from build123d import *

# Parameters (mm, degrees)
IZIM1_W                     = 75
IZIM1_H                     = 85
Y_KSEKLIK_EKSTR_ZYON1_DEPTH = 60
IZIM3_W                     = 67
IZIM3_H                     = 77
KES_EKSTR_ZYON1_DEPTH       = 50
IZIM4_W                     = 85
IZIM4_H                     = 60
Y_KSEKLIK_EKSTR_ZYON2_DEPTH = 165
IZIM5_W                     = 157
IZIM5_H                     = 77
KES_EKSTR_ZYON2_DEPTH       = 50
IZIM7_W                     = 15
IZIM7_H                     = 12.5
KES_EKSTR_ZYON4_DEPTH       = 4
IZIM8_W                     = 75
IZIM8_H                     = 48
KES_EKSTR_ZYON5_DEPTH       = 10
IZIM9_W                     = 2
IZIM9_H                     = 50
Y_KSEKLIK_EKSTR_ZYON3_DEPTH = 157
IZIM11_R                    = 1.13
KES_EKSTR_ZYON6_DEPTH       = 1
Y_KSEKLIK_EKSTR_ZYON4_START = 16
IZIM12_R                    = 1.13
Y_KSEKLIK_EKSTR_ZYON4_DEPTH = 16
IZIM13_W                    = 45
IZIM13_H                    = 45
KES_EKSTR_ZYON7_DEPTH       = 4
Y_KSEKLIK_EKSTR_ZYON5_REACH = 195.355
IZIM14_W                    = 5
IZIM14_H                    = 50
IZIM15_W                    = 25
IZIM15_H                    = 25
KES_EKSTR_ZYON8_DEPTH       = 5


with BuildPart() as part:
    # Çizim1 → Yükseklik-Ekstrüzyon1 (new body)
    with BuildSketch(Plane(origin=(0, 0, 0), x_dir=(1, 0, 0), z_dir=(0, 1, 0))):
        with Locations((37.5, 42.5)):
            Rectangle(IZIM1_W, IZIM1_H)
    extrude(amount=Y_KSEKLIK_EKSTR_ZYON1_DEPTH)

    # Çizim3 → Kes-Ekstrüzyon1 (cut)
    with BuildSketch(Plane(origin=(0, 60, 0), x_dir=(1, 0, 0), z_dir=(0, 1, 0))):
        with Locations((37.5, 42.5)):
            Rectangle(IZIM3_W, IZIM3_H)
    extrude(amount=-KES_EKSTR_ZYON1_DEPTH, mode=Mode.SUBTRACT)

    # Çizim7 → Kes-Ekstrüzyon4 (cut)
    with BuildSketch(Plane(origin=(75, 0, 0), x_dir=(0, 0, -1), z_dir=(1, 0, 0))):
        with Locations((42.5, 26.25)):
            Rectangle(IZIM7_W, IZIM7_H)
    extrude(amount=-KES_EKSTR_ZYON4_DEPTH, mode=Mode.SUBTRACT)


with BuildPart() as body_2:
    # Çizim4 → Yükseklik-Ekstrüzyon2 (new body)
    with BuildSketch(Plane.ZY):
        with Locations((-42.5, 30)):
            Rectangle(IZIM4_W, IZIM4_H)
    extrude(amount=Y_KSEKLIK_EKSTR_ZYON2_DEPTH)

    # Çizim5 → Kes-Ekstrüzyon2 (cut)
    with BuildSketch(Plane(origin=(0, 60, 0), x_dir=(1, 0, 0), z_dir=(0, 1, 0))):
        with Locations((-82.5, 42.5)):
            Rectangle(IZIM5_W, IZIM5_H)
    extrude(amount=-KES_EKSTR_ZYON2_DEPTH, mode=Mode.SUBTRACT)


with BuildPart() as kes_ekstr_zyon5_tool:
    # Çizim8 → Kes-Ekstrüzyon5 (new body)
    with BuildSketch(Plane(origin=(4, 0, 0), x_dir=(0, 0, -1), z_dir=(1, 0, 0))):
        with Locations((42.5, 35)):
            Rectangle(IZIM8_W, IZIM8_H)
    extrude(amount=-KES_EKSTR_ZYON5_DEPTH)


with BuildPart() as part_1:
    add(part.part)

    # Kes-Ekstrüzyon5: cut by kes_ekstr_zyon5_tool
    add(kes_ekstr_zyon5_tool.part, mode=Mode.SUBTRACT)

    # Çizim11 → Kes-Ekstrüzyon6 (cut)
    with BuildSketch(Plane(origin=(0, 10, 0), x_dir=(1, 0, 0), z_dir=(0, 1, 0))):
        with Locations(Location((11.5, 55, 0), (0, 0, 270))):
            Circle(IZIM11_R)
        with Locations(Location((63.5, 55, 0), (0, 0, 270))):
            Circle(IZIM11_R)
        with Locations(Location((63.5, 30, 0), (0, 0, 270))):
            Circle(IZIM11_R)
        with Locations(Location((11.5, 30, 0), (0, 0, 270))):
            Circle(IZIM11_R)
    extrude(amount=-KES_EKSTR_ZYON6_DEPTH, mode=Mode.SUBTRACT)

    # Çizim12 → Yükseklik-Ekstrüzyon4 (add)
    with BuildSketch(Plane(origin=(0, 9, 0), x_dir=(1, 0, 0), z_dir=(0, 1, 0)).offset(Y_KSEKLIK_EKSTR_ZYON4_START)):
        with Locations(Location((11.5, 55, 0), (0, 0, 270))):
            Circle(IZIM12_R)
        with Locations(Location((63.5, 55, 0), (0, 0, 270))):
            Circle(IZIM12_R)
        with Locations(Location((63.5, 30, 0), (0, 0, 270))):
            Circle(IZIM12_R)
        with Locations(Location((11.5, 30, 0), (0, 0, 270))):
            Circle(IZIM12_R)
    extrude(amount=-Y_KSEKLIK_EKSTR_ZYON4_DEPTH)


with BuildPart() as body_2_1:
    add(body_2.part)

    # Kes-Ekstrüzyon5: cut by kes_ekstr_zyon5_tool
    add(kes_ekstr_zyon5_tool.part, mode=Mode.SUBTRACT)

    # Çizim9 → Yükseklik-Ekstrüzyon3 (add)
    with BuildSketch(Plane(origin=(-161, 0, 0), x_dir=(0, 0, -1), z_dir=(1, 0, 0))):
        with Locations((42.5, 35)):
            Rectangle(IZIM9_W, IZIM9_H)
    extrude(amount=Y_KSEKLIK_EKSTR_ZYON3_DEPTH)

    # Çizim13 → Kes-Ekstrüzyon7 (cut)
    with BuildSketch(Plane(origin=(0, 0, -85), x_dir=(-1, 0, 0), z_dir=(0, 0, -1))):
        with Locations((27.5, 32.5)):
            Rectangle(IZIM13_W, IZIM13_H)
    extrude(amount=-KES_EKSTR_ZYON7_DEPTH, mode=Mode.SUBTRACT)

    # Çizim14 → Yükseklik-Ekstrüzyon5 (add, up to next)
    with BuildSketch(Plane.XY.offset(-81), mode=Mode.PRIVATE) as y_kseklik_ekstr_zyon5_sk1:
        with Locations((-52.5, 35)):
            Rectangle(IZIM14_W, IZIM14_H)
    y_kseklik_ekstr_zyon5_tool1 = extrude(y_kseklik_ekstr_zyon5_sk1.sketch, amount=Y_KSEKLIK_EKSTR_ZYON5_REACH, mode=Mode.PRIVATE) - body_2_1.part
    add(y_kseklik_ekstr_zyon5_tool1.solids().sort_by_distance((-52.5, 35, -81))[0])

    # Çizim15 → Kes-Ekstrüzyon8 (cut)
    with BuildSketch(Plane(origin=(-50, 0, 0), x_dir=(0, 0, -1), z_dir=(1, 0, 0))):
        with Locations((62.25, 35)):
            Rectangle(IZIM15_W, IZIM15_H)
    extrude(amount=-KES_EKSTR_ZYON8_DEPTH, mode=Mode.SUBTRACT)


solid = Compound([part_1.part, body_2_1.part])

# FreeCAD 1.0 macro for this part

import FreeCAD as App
import Part
import Sketcher

V = App.Vector
Q = App.Units.Quantity

doc = App.newDocument("Part")
body = doc.addObject("PartDesign::Body", "Body")

# Sketch on XZ plane
sketch1 = body.newObject("Sketcher::SketchObject", "Sketch")
sketch1.AttachmentSupport = (doc.getObject("XZ_Plane"), [""])
sketch1.MapMode = "FlatFace"
sketch1.addGeometry(Part.LineSegment(V(0, -85, 0), V(0, 0, 0)), False)
sketch1.addGeometry(Part.LineSegment(V(0, 0, 0), V(75, 0, 0)), False)
sketch1.addGeometry(Part.LineSegment(V(75, 0, 0), V(75, -85, 0)), False)
sketch1.addGeometry(Part.LineSegment(V(75, -85, 0), V(0, -85, 0)), False)
sketch1.addConstraint(Sketcher.Constraint("Coincident", 0, 2, 1, 1))
sketch1.addConstraint(Sketcher.Constraint("Coincident", 1, 2, 2, 1))
sketch1.addConstraint(Sketcher.Constraint("Coincident", 2, 2, 3, 1))
sketch1.addConstraint(Sketcher.Constraint("Coincident", 3, 2, 0, 1))
sketch1.addConstraint(Sketcher.Constraint("Vertical", 0))
sketch1.addConstraint(Sketcher.Constraint("Horizontal", 1))
sketch1.addConstraint(Sketcher.Constraint("Vertical", 2))
sketch1.addConstraint(Sketcher.Constraint("Horizontal", 3))
sketch1.addConstraint(Sketcher.Constraint("Coincident", 0, 2, -1, 1))
sketch1.addConstraint(Sketcher.Constraint("DistanceX", 1, 1, 1, 2, Q("75 mm")))
sketch1.addConstraint(Sketcher.Constraint("DistanceY", 0, 1, 0, 2, Q("85 mm")))
pad1 = body.newObject("PartDesign::Pad", "Pad")
pad1.Profile = sketch1
pad1.Length = 60
pad1.Reversed = True

# Sketch on XZ plane
sketch2 = body.newObject("Sketcher::SketchObject", "Sketch001")
sketch2.AttachmentSupport = (doc.getObject("XZ_Plane"), [""])
sketch2.MapMode = "FlatFace"
sketch2.AttachmentOffset = App.Placement(V(0, 0, -60), App.Rotation())
sketch2.addGeometry(Part.LineSegment(V(4, -81, 0), V(4, -4, 0)), False)
sketch2.addGeometry(Part.LineSegment(V(4, -4, 0), V(71, -4, 0)), False)
sketch2.addGeometry(Part.LineSegment(V(71, -4, 0), V(71, -81, 0)), False)
sketch2.addGeometry(Part.LineSegment(V(71, -81, 0), V(4, -81, 0)), False)
sketch2.addConstraint(Sketcher.Constraint("Coincident", 0, 2, 1, 1))
sketch2.addConstraint(Sketcher.Constraint("Coincident", 1, 2, 2, 1))
sketch2.addConstraint(Sketcher.Constraint("Coincident", 2, 2, 3, 1))
sketch2.addConstraint(Sketcher.Constraint("Coincident", 3, 2, 0, 1))
sketch2.addConstraint(Sketcher.Constraint("Vertical", 0))
sketch2.addConstraint(Sketcher.Constraint("Horizontal", 1))
sketch2.addConstraint(Sketcher.Constraint("Vertical", 2))
sketch2.addConstraint(Sketcher.Constraint("Horizontal", 3))
sketch2.addConstraint(Sketcher.Constraint("DistanceX", 1, 1, 1, 2, Q("67 mm")))
sketch2.addConstraint(Sketcher.Constraint("DistanceY", 0, 1, 0, 2, Q("77 mm")))
sketch2.addConstraint(Sketcher.Constraint("DistanceX", -1, 1, 0, 2, Q("4 mm")))
sketch2.addConstraint(Sketcher.Constraint("DistanceY", 0, 2, -1, 1, Q("4 mm")))
pocket1 = body.newObject("PartDesign::Pocket", "Pocket")
pocket1.Profile = sketch2
pocket1.Length = 50
pocket1.Reversed = True

# Sketch on YZ plane
sketch3 = body.newObject("Sketcher::SketchObject", "Sketch002")
sketch3.AttachmentSupport = (doc.getObject("YZ_Plane"), [""])
sketch3.MapMode = "FlatFace"
sketch3.AttachmentOffset = App.Placement(V(0, 0, 75), App.Rotation())
sketch3.addGeometry(Part.LineSegment(V(32, -35, 0), V(20, -35, 0)), False)
sketch3.addGeometry(Part.LineSegment(V(20, -35, 0), V(20, -50, 0)), False)
sketch3.addGeometry(Part.LineSegment(V(20, -50, 0), V(32, -50, 0)), False)
sketch3.addGeometry(Part.LineSegment(V(32, -50, 0), V(32, -35, 0)), False)
sketch3.addConstraint(Sketcher.Constraint("Coincident", 0, 2, 1, 1))
sketch3.addConstraint(Sketcher.Constraint("Coincident", 1, 2, 2, 1))
sketch3.addConstraint(Sketcher.Constraint("Coincident", 2, 2, 3, 1))
sketch3.addConstraint(Sketcher.Constraint("Coincident", 3, 2, 0, 1))
sketch3.addConstraint(Sketcher.Constraint("Horizontal", 0))
sketch3.addConstraint(Sketcher.Constraint("Vertical", 1))
sketch3.addConstraint(Sketcher.Constraint("Horizontal", 2))
sketch3.addConstraint(Sketcher.Constraint("Vertical", 3))
sketch3.addConstraint(Sketcher.Constraint("DistanceY", 1, 2, 1, 1, Q("15 mm")))
sketch3.addConstraint(Sketcher.Constraint("DistanceX", 0, 2, 0, 1, Q("12.5 mm")))
sketch3.addConstraint(Sketcher.Constraint("DistanceX", -1, 1, 0, 2, Q("20 mm")))
sketch3.addConstraint(Sketcher.Constraint("DistanceY", 0, 2, -1, 1, Q("35 mm")))
pocket2 = body.newObject("PartDesign::Pocket", "Pocket001")
pocket2.Profile = sketch3
pocket2.Length = 4
body2 = doc.addObject("PartDesign::Body", "Body001")

# Sketch on YZ plane
sketch4 = body2.newObject("Sketcher::SketchObject", "Sketch003")
sketch4.AttachmentSupport = (doc.getObject("YZ_Plane001"), [""])
sketch4.MapMode = "FlatFace"
sketch4.addGeometry(Part.LineSegment(V(60, -85, 0), V(0, -85, 0)), False)
sketch4.addGeometry(Part.LineSegment(V(0, -85, 0), V(0, 0, 0)), False)
sketch4.addGeometry(Part.LineSegment(V(0, 0, 0), V(60, 0, 0)), False)
sketch4.addGeometry(Part.LineSegment(V(60, 0, 0), V(60, -85, 0)), False)
sketch4.addConstraint(Sketcher.Constraint("Coincident", 0, 2, 1, 1))
sketch4.addConstraint(Sketcher.Constraint("Coincident", 1, 2, 2, 1))
sketch4.addConstraint(Sketcher.Constraint("Coincident", 2, 2, 3, 1))
sketch4.addConstraint(Sketcher.Constraint("Coincident", 3, 2, 0, 1))
sketch4.addConstraint(Sketcher.Constraint("Horizontal", 0))
sketch4.addConstraint(Sketcher.Constraint("Vertical", 1))
sketch4.addConstraint(Sketcher.Constraint("Horizontal", 2))
sketch4.addConstraint(Sketcher.Constraint("Vertical", 3))
sketch4.addConstraint(Sketcher.Constraint("Coincident", 1, 2, -1, 1))
sketch4.addConstraint(Sketcher.Constraint("DistanceX", 0, 2, 0, 1, Q("60 mm")))
sketch4.addConstraint(Sketcher.Constraint("DistanceY", 1, 1, 1, 2, Q("85 mm")))
pad2 = body2.newObject("PartDesign::Pad", "Pad001")
pad2.Profile = sketch4
pad2.Length = 165
pad2.Reversed = True

# Sketch on XZ plane
sketch5 = body2.newObject("Sketcher::SketchObject", "Sketch004")
sketch5.AttachmentSupport = (doc.getObject("XZ_Plane001"), [""])
sketch5.MapMode = "FlatFace"
sketch5.AttachmentOffset = App.Placement(V(0, 0, -60), App.Rotation())
sketch5.addGeometry(Part.LineSegment(V(-161, -81, 0), V(-161, -4, 0)), False)
sketch5.addGeometry(Part.LineSegment(V(-161, -4, 0), V(-4, -4, 0)), False)
sketch5.addGeometry(Part.LineSegment(V(-4, -4, 0), V(-4, -81, 0)), False)
sketch5.addGeometry(Part.LineSegment(V(-4, -81, 0), V(-161, -81, 0)), False)
sketch5.addConstraint(Sketcher.Constraint("Coincident", 0, 2, 1, 1))
sketch5.addConstraint(Sketcher.Constraint("Coincident", 1, 2, 2, 1))
sketch5.addConstraint(Sketcher.Constraint("Coincident", 2, 2, 3, 1))
sketch5.addConstraint(Sketcher.Constraint("Coincident", 3, 2, 0, 1))
sketch5.addConstraint(Sketcher.Constraint("Vertical", 0))
sketch5.addConstraint(Sketcher.Constraint("Horizontal", 1))
sketch5.addConstraint(Sketcher.Constraint("Vertical", 2))
sketch5.addConstraint(Sketcher.Constraint("Horizontal", 3))
sketch5.addConstraint(Sketcher.Constraint("DistanceX", 1, 1, 1, 2, Q("157 mm")))
sketch5.addConstraint(Sketcher.Constraint("DistanceY", 0, 1, 0, 2, Q("77 mm")))
sketch5.addConstraint(Sketcher.Constraint("DistanceX", 0, 2, -1, 1, Q("161 mm")))
sketch5.addConstraint(Sketcher.Constraint("DistanceY", 0, 2, -1, 1, Q("4 mm")))
pocket3 = body2.newObject("PartDesign::Pocket", "Pocket002")
pocket3.Profile = sketch5
pocket3.Length = 50
pocket3.Reversed = True
body3 = doc.addObject("PartDesign::Body", "Body002")

# Sketch on YZ plane
sketch6 = body3.newObject("Sketcher::SketchObject", "Sketch005")
sketch6.AttachmentSupport = (doc.getObject("YZ_Plane002"), [""])
sketch6.MapMode = "FlatFace"
sketch6.AttachmentOffset = App.Placement(V(0, 0, 4), App.Rotation())
sketch6.addGeometry(Part.LineSegment(V(59, -5, 0), V(11, -5, 0)), False)
sketch6.addGeometry(Part.LineSegment(V(11, -5, 0), V(11, -80, 0)), False)
sketch6.addGeometry(Part.LineSegment(V(11, -80, 0), V(59, -80, 0)), False)
sketch6.addGeometry(Part.LineSegment(V(59, -80, 0), V(59, -5, 0)), False)
sketch6.addConstraint(Sketcher.Constraint("Coincident", 0, 2, 1, 1))
sketch6.addConstraint(Sketcher.Constraint("Coincident", 1, 2, 2, 1))
sketch6.addConstraint(Sketcher.Constraint("Coincident", 2, 2, 3, 1))
sketch6.addConstraint(Sketcher.Constraint("Coincident", 3, 2, 0, 1))
sketch6.addConstraint(Sketcher.Constraint("Horizontal", 0))
sketch6.addConstraint(Sketcher.Constraint("Vertical", 1))
sketch6.addConstraint(Sketcher.Constraint("Horizontal", 2))
sketch6.addConstraint(Sketcher.Constraint("Vertical", 3))
sketch6.addConstraint(Sketcher.Constraint("DistanceX", 0, 2, 0, 1, Q("48 mm")))
sketch6.addConstraint(Sketcher.Constraint("DistanceY", 1, 2, 1, 1, Q("75 mm")))
sketch6.addConstraint(Sketcher.Constraint("DistanceX", -1, 1, 0, 2, Q("11 mm")))
sketch6.addConstraint(Sketcher.Constraint("DistanceY", 0, 2, -1, 1, Q("5 mm")))
pad3 = body3.newObject("PartDesign::Pad", "Pad002")
pad3.Profile = sketch6
pad3.Length = 10
pad3.Reversed = True
doc.recompute()

body4 = doc.addObject("PartDesign::Body", "Body003")
body4.BaseFeature = body3
boolean = body.newObject("PartDesign::Boolean", "Boolean")
boolean.Type = "Cut"
boolean.addObjects([body4])
doc.recompute()

# Sketch on XZ plane
sketch7 = body.newObject("Sketcher::SketchObject", "Sketch006")
sketch7.AttachmentSupport = (doc.getObject("XZ_Plane"), [""])
sketch7.MapMode = "FlatFace"
sketch7.AttachmentOffset = App.Placement(V(0, 0, -10), App.Rotation())
sketch7.addGeometry(Part.Circle(V(11.5, -55, 0), V(0, 0, 1), 1.1), False)
sketch7.addGeometry(Part.Circle(V(63.5, -55, 0), V(0, 0, 1), 1.1), False)
sketch7.addGeometry(Part.Circle(V(63.5, -30, 0), V(0, 0, 1), 1.1), False)
sketch7.addGeometry(Part.Circle(V(11.5, -30, 0), V(0, 0, 1), 1.1), False)
sketch7.addConstraint(Sketcher.Constraint("Equal", 0, 1))
sketch7.addConstraint(Sketcher.Constraint("Equal", 1, 2))
sketch7.addConstraint(Sketcher.Constraint("Equal", 2, 3))
sketch7.addConstraint(Sketcher.Constraint("Horizontal", 0, 3, 1, 3))
sketch7.addConstraint(Sketcher.Constraint("Horizontal", 2, 3, 3, 3))
sketch7.addConstraint(Sketcher.Constraint("Vertical", 1, 3, 2, 3))
sketch7.addConstraint(Sketcher.Constraint("Vertical", 0, 3, 3, 3))
sketch7.addConstraint(Sketcher.Constraint("Diameter", 0, Q("2.26 mm")))
sketch7.addConstraint(Sketcher.Constraint("DistanceY", 0, 3, -1, 1, Q("55 mm")))
sketch7.addConstraint(Sketcher.Constraint("DistanceY", 2, 3, -1, 1, Q("30 mm")))
sketch7.addConstraint(Sketcher.Constraint("DistanceX", 0, 3, 1, 3, Q("52 mm")))
sketch7.addConstraint(Sketcher.Constraint("DistanceX", -1, 1, 0, 3, Q("11.5 mm")))
pocket4 = body.newObject("PartDesign::Pocket", "Pocket003")
pocket4.Profile = sketch7
pocket4.Length = 1
pocket4.Reversed = True

# Sketch on XZ plane
sketch8 = body.newObject("Sketcher::SketchObject", "Sketch007")
sketch8.AttachmentSupport = (doc.getObject("XZ_Plane"), [""])
sketch8.MapMode = "FlatFace"
sketch8.AttachmentOffset = App.Placement(V(0, 0, -25), App.Rotation())
sketch8.addGeometry(Part.Circle(V(11.5, -55, 0), V(0, 0, 1), 1.1), False)
sketch8.addGeometry(Part.Circle(V(63.5, -55, 0), V(0, 0, 1), 1.1), False)
sketch8.addGeometry(Part.Circle(V(63.5, -30, 0), V(0, 0, 1), 1.1), False)
sketch8.addGeometry(Part.Circle(V(11.5, -30, 0), V(0, 0, 1), 1.1), False)
sketch8.addConstraint(Sketcher.Constraint("Equal", 0, 1))
sketch8.addConstraint(Sketcher.Constraint("Equal", 1, 2))
sketch8.addConstraint(Sketcher.Constraint("Equal", 2, 3))
sketch8.addConstraint(Sketcher.Constraint("Horizontal", 0, 3, 1, 3))
sketch8.addConstraint(Sketcher.Constraint("Horizontal", 2, 3, 3, 3))
sketch8.addConstraint(Sketcher.Constraint("Vertical", 1, 3, 2, 3))
sketch8.addConstraint(Sketcher.Constraint("Vertical", 0, 3, 3, 3))
sketch8.addConstraint(Sketcher.Constraint("Diameter", 0, Q("2.26 mm")))
sketch8.addConstraint(Sketcher.Constraint("DistanceY", 0, 3, -1, 1, Q("55 mm")))
sketch8.addConstraint(Sketcher.Constraint("DistanceY", 2, 3, -1, 1, Q("30 mm")))
sketch8.addConstraint(Sketcher.Constraint("DistanceX", 0, 3, 1, 3, Q("52 mm")))
sketch8.addConstraint(Sketcher.Constraint("DistanceX", -1, 1, 0, 3, Q("11.5 mm")))
pad4 = body.newObject("PartDesign::Pad", "Pad003")
pad4.Profile = sketch8
pad4.Length = 16
doc.recompute()

boolean2 = body2.newObject("PartDesign::Boolean", "Boolean001")
boolean2.Type = "Cut"
boolean2.addObjects([body3])

# Sketch on YZ plane
sketch9 = body2.newObject("Sketcher::SketchObject", "Sketch008")
sketch9.AttachmentSupport = (doc.getObject("YZ_Plane001"), [""])
sketch9.MapMode = "FlatFace"
sketch9.AttachmentOffset = App.Placement(V(0, 0, -161), App.Rotation())
sketch9.addGeometry(Part.LineSegment(V(60, -41.5, 0), V(10, -41.5, 0)), False)
sketch9.addGeometry(Part.LineSegment(V(10, -41.5, 0), V(10, -43.5, 0)), False)
sketch9.addGeometry(Part.LineSegment(V(10, -43.5, 0), V(60, -43.5, 0)), False)
sketch9.addGeometry(Part.LineSegment(V(60, -43.5, 0), V(60, -41.5, 0)), False)
sketch9.addConstraint(Sketcher.Constraint("Coincident", 0, 2, 1, 1))
sketch9.addConstraint(Sketcher.Constraint("Coincident", 1, 2, 2, 1))
sketch9.addConstraint(Sketcher.Constraint("Coincident", 2, 2, 3, 1))
sketch9.addConstraint(Sketcher.Constraint("Coincident", 3, 2, 0, 1))
sketch9.addConstraint(Sketcher.Constraint("Horizontal", 0))
sketch9.addConstraint(Sketcher.Constraint("Vertical", 1))
sketch9.addConstraint(Sketcher.Constraint("Horizontal", 2))
sketch9.addConstraint(Sketcher.Constraint("Vertical", 3))
sketch9.addConstraint(Sketcher.Constraint("DistanceX", 0, 2, 0, 1, Q("50 mm")))
sketch9.addConstraint(Sketcher.Constraint("DistanceY", 1, 2, 1, 1, Q("2 mm")))
sketch9.addConstraint(Sketcher.Constraint("DistanceX", -1, 1, 0, 2, Q("10 mm")))
sketch9.addConstraint(Sketcher.Constraint("DistanceY", 0, 2, -1, 1, Q("41.5 mm")))
pad5 = body2.newObject("PartDesign::Pad", "Pad004")
pad5.Profile = sketch9
pad5.Length = 157

# Sketch on XY plane
sketch10 = body2.newObject("Sketcher::SketchObject", "Sketch009")
sketch10.AttachmentSupport = (doc.getObject("XY_Plane001"), [""])
sketch10.MapMode = "FlatFace"
sketch10.AttachmentOffset = App.Placement(V(0, 0, -85), App.Rotation())
sketch10.addGeometry(Part.LineSegment(V(-5, 55, 0), V(-5, 10, 0)), False)
sketch10.addGeometry(Part.LineSegment(V(-5, 10, 0), V(-50, 10, 0)), False)
sketch10.addGeometry(Part.LineSegment(V(-50, 10, 0), V(-50, 55, 0)), False)
sketch10.addGeometry(Part.LineSegment(V(-50, 55, 0), V(-5, 55, 0)), False)
sketch10.addConstraint(Sketcher.Constraint("Coincident", 0, 2, 1, 1))
sketch10.addConstraint(Sketcher.Constraint("Coincident", 1, 2, 2, 1))
sketch10.addConstraint(Sketcher.Constraint("Coincident", 2, 2, 3, 1))
sketch10.addConstraint(Sketcher.Constraint("Coincident", 3, 2, 0, 1))
sketch10.addConstraint(Sketcher.Constraint("Vertical", 0))
sketch10.addConstraint(Sketcher.Constraint("Horizontal", 1))
sketch10.addConstraint(Sketcher.Constraint("Vertical", 2))
sketch10.addConstraint(Sketcher.Constraint("Horizontal", 3))
sketch10.addConstraint(Sketcher.Constraint("Equal", 3, 0))
sketch10.addConstraint(Sketcher.Constraint("DistanceX", 1, 2, 1, 1, Q("45 mm")))
sketch10.addConstraint(Sketcher.Constraint("DistanceX", 0, 2, -1, 1, Q("5 mm")))
sketch10.addConstraint(Sketcher.Constraint("DistanceY", -1, 1, 0, 2, Q("10 mm")))
pocket5 = body2.newObject("PartDesign::Pocket", "Pocket004")
pocket5.Profile = sketch10
pocket5.Length = 4
pocket5.Reversed = True

# Sketch on XY plane
sketch11 = body2.newObject("Sketcher::SketchObject", "Sketch010")
sketch11.AttachmentSupport = (doc.getObject("XY_Plane001"), [""])
sketch11.MapMode = "FlatFace"
sketch11.AttachmentOffset = App.Placement(V(0, 0, -81), App.Rotation())
sketch11.addGeometry(Part.LineSegment(V(-55, 60, 0), V(-55, 10, 0)), False)
sketch11.addGeometry(Part.LineSegment(V(-55, 10, 0), V(-50, 10, 0)), False)
sketch11.addGeometry(Part.LineSegment(V(-50, 10, 0), V(-50, 60, 0)), False)
sketch11.addGeometry(Part.LineSegment(V(-50, 60, 0), V(-55, 60, 0)), False)
sketch11.addConstraint(Sketcher.Constraint("Coincident", 0, 2, 1, 1))
sketch11.addConstraint(Sketcher.Constraint("Coincident", 1, 2, 2, 1))
sketch11.addConstraint(Sketcher.Constraint("Coincident", 2, 2, 3, 1))
sketch11.addConstraint(Sketcher.Constraint("Coincident", 3, 2, 0, 1))
sketch11.addConstraint(Sketcher.Constraint("Vertical", 0))
sketch11.addConstraint(Sketcher.Constraint("Horizontal", 1))
sketch11.addConstraint(Sketcher.Constraint("Vertical", 2))
sketch11.addConstraint(Sketcher.Constraint("Horizontal", 3))
sketch11.addConstraint(Sketcher.Constraint("DistanceX", 1, 1, 1, 2, Q("5 mm")))
sketch11.addConstraint(Sketcher.Constraint("DistanceY", 0, 2, 0, 1, Q("50 mm")))
sketch11.addConstraint(Sketcher.Constraint("DistanceX", 0, 2, -1, 1, Q("55 mm")))
sketch11.addConstraint(Sketcher.Constraint("DistanceY", -1, 1, 0, 2, Q("10 mm")))
pad6 = body2.newObject("PartDesign::Pad", "Pad005")
pad6.Profile = sketch11
pad6.Type = "UpToFirst"

# Sketch on YZ plane
sketch12 = body2.newObject("Sketcher::SketchObject", "Sketch011")
sketch12.AttachmentSupport = (doc.getObject("YZ_Plane001"), [""])
sketch12.MapMode = "FlatFace"
sketch12.AttachmentOffset = App.Placement(V(0, 0, -50), App.Rotation())
sketch12.addGeometry(Part.LineSegment(V(48, -50, 0), V(22, -50, 0)), False)
sketch12.addGeometry(Part.LineSegment(V(22, -50, 0), V(22, -75, 0)), False)
sketch12.addGeometry(Part.LineSegment(V(22, -75, 0), V(48, -75, 0)), False)
sketch12.addGeometry(Part.LineSegment(V(48, -75, 0), V(48, -50, 0)), False)
sketch12.addConstraint(Sketcher.Constraint("Coincident", 0, 2, 1, 1))
sketch12.addConstraint(Sketcher.Constraint("Coincident", 1, 2, 2, 1))
sketch12.addConstraint(Sketcher.Constraint("Coincident", 2, 2, 3, 1))
sketch12.addConstraint(Sketcher.Constraint("Coincident", 3, 2, 0, 1))
sketch12.addConstraint(Sketcher.Constraint("Horizontal", 0))
sketch12.addConstraint(Sketcher.Constraint("Vertical", 1))
sketch12.addConstraint(Sketcher.Constraint("Horizontal", 2))
sketch12.addConstraint(Sketcher.Constraint("Vertical", 3))
sketch12.addConstraint(Sketcher.Constraint("Equal", 2, 1))
sketch12.addConstraint(Sketcher.Constraint("DistanceX", 0, 2, 0, 1, Q("25 mm")))
sketch12.addConstraint(Sketcher.Constraint("DistanceX", -1, 1, 0, 2, Q("22.5 mm")))
sketch12.addConstraint(Sketcher.Constraint("DistanceY", 0, 2, -1, 1, Q("49.75 mm")))
pocket6 = body2.newObject("PartDesign::Pocket", "Pocket005")
pocket6.Profile = sketch12
pocket6.Length = 5

doc.recompute()
